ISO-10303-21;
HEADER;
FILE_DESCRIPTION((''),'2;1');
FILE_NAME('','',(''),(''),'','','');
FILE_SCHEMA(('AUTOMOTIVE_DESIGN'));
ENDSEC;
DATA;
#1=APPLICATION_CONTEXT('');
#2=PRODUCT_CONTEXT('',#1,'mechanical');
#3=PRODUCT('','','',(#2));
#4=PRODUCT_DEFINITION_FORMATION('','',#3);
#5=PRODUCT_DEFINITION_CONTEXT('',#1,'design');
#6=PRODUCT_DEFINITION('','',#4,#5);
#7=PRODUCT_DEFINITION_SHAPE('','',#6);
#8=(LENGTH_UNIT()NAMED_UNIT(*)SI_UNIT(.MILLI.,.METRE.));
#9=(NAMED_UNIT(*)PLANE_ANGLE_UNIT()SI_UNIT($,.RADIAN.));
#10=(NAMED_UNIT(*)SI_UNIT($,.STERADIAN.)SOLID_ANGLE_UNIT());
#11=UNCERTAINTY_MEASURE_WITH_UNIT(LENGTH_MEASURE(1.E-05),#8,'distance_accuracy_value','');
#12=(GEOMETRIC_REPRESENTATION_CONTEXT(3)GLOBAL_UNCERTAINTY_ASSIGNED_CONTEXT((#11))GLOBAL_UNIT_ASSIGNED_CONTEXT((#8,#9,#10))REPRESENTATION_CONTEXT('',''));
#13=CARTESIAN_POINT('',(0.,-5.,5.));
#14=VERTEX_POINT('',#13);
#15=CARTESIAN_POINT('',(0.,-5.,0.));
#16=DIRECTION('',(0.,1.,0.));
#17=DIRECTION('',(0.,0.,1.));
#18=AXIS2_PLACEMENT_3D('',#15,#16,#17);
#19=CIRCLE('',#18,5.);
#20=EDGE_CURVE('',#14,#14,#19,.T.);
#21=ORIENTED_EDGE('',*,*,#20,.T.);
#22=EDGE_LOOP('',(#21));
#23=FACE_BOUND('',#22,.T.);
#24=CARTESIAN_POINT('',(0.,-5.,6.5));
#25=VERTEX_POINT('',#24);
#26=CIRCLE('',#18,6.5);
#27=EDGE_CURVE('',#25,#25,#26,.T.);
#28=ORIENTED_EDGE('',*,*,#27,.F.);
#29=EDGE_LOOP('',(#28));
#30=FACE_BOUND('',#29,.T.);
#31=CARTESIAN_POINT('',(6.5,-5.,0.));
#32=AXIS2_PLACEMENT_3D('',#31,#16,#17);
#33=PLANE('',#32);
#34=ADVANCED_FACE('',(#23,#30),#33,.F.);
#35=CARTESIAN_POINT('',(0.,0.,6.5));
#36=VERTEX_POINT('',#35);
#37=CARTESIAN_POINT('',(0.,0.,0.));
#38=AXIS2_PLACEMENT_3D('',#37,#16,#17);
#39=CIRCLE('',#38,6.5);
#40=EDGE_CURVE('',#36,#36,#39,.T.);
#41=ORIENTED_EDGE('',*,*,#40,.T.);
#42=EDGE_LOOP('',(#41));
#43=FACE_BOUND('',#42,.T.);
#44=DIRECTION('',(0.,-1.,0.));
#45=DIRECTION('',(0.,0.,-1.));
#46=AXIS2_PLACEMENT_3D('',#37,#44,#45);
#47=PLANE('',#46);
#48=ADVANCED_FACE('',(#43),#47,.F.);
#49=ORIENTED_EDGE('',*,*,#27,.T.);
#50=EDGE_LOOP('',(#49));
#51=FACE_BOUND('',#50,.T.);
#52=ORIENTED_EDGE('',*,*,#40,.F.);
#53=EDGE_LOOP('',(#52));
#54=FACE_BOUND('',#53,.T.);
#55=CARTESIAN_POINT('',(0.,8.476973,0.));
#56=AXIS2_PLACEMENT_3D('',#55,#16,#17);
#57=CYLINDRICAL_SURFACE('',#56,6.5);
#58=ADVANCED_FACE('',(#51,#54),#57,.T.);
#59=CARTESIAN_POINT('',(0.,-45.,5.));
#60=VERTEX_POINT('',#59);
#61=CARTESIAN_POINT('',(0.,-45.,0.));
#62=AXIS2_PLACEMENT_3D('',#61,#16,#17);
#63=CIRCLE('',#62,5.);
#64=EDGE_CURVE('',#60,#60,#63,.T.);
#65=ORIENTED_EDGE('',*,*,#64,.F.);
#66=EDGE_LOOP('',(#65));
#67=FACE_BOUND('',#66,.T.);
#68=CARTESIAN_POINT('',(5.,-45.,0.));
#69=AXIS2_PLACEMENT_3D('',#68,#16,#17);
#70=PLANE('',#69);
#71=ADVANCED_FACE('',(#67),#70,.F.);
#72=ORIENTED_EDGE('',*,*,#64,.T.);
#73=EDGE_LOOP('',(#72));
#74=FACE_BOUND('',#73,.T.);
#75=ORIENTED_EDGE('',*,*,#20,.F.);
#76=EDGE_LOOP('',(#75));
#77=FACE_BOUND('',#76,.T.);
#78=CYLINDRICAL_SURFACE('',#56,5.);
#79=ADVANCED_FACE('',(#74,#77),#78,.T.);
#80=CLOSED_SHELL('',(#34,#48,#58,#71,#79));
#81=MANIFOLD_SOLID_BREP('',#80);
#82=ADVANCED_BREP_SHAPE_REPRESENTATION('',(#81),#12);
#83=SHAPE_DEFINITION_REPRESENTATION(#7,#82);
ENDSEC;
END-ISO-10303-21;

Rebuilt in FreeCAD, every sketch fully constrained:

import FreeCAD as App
import Part
import Sketcher

V = App.Vector


def add_polygon(sketch, points):
    """Adds a closed chain of lines whose ends are joined by coincident constraints."""
    first, n = sketch.GeometryCount, len(points)
    for a, b in zip(points, points[1:] + points[:1]):
        sketch.addGeometry(Part.LineSegment(App.Vector(*a, 0), App.Vector(*b, 0)), False)
    for i in range(n):
        sketch.addConstraint(Sketcher.Constraint("Coincident", first + i, 2, first + (i + 1) % n, 1))

doc = App.newDocument("Part")
params = doc.addObject("Spreadsheet::Sheet", "Params")
for row, (alias, value) in enumerate([
    ("sketch1_width", "5 mm"),
    ("sketch1_height", "45 mm"),
    ("sketch1_width2", "6.5 mm"),
    ("revolution_angle", "360 deg"),
], start=1):
    params.set(f"A{row}", alias)
    params.set(f"B{row}", "=" + value)
    params.setAlias(f"B{row}", alias)

body = doc.addObject("PartDesign::Body", "Body")

# Sketch on XY plane
sketch1 = body.newObject("Sketcher::SketchObject", "Sketch")
sketch1.AttachmentSupport = (doc.getObject("XY_Plane"), [""])
sketch1.MapMode = "FlatFace"
add_polygon(sketch1, [(6.5, 0), (0, 0), (0, -45), (5, -45), (5, -5), (6.5, -5)])  # lines 0-5
sketch1.addConstraint(Sketcher.Constraint("Horizontal", 0))
sketch1.addConstraint(Sketcher.Constraint("Vertical", 1))
sketch1.addConstraint(Sketcher.Constraint("Horizontal", 2))
sketch1.addConstraint(Sketcher.Constraint("Vertical", 3))
sketch1.addConstraint(Sketcher.Constraint("Horizontal", 4))
sketch1.addConstraint(Sketcher.Constraint("Vertical", 5))
sketch1.addConstraint(Sketcher.Constraint("Coincident", 0, 2, -1, 1))
sketch1.addConstraint(Sketcher.Constraint("Equal", 2, 5))
sketch1.addConstraint(Sketcher.Constraint("DistanceX", 2, 1, 2, 2, 5.0))
sketch1.addConstraint(Sketcher.Constraint("DistanceY", 1, 2, 1, 1, 45.0))
sketch1.addConstraint(Sketcher.Constraint("DistanceX", 0, 2, 0, 1, 6.5))
sketch1.setExpression("Constraints[14]", "Params.sketch1_width")
sketch1.setExpression("Constraints[15]", "Params.sketch1_height")
sketch1.setExpression("Constraints[16]", "Params.sketch1_width2")
revolution = body.newObject("PartDesign::Revolution", "Revolution")
revolution.Profile = sketch1
revolution.ReferenceAxis = (sketch1, ["V_Axis"])
revolution.setExpression("Angle", "Params.revolution_angle")

doc.recompute()
